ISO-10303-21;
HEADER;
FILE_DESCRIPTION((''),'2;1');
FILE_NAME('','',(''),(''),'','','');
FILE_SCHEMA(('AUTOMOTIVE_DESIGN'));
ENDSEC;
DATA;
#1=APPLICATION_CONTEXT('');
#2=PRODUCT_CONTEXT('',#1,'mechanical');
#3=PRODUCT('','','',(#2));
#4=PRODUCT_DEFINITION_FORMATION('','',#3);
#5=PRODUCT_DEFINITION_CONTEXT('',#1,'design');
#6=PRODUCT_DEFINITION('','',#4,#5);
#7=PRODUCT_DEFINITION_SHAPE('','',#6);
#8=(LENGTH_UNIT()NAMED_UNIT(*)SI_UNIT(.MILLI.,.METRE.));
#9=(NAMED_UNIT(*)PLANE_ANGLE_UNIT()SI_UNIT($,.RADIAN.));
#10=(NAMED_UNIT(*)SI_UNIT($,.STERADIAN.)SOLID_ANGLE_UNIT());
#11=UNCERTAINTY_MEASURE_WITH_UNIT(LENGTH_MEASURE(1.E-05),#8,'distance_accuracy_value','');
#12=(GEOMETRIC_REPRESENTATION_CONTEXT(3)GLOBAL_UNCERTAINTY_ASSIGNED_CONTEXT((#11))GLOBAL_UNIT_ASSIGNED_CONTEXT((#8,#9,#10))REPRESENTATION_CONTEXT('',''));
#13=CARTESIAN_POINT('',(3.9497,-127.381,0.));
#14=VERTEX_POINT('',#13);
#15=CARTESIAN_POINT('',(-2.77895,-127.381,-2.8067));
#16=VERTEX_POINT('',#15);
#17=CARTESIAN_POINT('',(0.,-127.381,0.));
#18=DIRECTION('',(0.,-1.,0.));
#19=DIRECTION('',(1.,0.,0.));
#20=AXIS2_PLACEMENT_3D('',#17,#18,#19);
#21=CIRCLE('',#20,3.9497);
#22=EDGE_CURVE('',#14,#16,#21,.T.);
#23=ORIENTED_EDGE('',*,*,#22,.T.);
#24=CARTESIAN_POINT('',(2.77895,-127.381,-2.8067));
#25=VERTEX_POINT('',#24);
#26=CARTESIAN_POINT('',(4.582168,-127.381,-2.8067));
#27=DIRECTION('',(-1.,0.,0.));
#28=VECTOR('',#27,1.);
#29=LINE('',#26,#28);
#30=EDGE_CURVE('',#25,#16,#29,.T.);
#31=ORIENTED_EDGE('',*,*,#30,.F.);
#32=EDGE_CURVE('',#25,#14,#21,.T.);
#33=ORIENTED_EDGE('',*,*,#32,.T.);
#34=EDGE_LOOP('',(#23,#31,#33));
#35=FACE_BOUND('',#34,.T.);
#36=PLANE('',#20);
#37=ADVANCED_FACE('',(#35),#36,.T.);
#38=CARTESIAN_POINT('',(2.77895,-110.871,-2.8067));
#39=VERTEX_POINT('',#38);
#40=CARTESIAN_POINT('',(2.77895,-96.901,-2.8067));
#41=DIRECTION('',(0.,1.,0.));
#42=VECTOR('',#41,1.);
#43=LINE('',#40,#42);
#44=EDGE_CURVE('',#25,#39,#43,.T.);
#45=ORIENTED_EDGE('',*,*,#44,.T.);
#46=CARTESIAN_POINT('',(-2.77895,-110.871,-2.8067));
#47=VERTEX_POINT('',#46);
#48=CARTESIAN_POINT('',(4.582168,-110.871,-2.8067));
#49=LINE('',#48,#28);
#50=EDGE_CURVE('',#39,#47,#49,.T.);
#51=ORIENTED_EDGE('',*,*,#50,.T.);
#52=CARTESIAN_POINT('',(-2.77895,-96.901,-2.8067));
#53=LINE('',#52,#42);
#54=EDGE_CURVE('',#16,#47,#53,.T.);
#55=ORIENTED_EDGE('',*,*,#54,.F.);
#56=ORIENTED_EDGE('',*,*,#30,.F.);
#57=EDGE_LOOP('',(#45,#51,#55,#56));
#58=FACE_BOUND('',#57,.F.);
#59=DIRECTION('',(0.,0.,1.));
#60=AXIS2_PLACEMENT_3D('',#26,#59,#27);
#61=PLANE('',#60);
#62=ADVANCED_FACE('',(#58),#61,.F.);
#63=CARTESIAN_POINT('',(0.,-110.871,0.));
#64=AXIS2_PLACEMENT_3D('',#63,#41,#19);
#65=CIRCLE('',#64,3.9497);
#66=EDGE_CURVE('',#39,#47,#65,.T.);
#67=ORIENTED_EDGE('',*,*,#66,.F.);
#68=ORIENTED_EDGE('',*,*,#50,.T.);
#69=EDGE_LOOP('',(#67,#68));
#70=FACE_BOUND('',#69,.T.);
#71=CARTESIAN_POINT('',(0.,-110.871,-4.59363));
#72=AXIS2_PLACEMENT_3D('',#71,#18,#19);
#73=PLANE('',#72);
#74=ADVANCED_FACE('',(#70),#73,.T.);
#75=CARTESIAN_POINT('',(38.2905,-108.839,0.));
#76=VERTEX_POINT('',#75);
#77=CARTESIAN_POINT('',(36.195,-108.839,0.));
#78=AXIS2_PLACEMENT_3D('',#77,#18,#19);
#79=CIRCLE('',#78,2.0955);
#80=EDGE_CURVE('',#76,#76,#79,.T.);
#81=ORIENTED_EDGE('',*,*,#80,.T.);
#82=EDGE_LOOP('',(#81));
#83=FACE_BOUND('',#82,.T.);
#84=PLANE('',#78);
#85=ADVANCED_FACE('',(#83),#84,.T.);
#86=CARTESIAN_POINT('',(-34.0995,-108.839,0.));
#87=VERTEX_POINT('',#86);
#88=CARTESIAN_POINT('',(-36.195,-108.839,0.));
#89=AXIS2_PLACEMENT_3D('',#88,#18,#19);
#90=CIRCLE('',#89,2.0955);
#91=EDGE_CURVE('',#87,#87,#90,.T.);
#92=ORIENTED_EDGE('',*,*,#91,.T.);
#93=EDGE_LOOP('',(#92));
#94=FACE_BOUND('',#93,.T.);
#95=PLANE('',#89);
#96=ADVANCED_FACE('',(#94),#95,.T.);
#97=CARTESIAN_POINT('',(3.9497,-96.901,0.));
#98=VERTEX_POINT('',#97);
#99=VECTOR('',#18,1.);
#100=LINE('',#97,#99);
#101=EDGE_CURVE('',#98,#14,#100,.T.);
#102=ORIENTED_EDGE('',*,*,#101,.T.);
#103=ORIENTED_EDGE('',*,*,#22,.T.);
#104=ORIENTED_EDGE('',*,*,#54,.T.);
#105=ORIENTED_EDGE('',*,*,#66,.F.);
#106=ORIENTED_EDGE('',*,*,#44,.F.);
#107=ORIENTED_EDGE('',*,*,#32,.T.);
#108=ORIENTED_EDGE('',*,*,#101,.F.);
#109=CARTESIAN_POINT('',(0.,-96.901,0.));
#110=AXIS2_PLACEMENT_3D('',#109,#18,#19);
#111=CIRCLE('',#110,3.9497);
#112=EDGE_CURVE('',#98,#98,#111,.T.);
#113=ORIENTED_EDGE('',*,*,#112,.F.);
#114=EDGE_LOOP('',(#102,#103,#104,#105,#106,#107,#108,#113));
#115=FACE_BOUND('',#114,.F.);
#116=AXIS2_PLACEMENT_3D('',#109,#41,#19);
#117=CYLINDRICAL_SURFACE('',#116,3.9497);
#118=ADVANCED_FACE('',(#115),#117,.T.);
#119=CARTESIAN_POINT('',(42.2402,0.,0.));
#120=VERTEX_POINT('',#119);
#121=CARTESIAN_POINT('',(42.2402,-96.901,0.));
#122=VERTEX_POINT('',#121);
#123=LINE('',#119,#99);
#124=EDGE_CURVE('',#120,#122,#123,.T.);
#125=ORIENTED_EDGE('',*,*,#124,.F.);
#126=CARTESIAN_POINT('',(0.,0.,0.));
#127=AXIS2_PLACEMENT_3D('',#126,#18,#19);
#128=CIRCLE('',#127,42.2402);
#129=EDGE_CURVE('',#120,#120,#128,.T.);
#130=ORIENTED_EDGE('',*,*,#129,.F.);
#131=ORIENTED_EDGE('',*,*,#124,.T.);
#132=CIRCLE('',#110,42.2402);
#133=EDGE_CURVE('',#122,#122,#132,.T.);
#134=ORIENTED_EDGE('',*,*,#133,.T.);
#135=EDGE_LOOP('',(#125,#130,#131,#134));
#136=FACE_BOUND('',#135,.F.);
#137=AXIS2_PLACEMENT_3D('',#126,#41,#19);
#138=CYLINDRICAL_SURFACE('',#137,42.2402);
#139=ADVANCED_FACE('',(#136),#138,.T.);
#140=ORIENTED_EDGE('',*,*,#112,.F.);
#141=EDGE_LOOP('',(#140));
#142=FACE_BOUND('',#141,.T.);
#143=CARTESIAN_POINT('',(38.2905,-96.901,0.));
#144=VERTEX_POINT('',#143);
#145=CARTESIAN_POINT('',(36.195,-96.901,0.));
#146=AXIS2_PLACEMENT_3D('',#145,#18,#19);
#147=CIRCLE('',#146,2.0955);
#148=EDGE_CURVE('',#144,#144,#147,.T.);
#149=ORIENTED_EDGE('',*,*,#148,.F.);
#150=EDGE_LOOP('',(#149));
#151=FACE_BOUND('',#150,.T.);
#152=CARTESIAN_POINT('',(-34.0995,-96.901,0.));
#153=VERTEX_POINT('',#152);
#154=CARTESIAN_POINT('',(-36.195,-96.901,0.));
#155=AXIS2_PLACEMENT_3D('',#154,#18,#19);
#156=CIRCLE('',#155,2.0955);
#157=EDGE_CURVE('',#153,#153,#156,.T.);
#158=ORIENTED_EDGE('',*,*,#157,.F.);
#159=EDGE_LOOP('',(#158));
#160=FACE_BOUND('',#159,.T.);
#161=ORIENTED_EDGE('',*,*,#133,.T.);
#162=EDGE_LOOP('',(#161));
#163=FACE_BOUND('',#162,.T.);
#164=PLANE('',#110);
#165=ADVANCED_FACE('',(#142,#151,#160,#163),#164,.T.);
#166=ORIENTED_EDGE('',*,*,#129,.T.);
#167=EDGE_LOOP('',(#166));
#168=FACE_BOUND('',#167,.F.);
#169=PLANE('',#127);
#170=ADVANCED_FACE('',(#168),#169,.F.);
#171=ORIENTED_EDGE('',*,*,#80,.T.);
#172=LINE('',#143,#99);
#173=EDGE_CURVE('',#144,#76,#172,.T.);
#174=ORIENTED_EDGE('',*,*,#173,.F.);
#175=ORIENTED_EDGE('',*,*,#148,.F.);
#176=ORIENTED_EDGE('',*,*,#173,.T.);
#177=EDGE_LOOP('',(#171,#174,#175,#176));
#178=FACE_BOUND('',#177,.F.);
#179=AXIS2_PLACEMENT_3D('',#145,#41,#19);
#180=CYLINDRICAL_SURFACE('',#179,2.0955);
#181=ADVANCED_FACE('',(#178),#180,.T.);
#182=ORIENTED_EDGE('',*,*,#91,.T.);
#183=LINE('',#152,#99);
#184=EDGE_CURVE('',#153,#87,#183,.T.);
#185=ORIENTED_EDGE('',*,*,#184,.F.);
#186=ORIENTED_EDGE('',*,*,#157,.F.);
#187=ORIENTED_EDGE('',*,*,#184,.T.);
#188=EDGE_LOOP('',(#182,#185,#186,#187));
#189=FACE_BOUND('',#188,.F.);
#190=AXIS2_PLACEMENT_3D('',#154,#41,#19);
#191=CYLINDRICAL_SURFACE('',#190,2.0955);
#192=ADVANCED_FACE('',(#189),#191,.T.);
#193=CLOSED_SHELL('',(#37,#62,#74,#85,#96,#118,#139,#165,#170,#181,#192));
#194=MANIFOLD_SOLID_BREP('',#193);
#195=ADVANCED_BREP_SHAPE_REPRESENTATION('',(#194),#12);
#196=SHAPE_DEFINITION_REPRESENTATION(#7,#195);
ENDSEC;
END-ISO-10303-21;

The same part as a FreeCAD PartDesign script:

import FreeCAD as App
import Part
import Sketcher

V = App.Vector
Q = App.Units.Quantity

doc = App.newDocument("Part")
body = doc.addObject("PartDesign::Body", "Body")

# Sketch on XZ plane
sketch1 = doc.addObject("Sketcher::SketchObject", "Sketch")
body.addObject(sketch1)
sketch1.AttachmentSupport = (doc.XZ_Plane, [""])
sketch1.MapMode = "FlatFace"
sketch1.addGeometry(Part.Circle(V(0, 0, 0), V(0, 0, 1), 42), False)
sketch1.addConstraint([
    Sketcher.Constraint("Coincident", 0, 3, -1, 1),
    Sketcher.Constraint("Diameter", 0, Q("3.326 in")),
])
pad1 = doc.addObject("PartDesign::Pad", "Pad")
body.addObject(pad1)
pad1.Profile = sketch1
pad1.Length = Q("3.815 in")

# Sketch on XZ plane
sketch2 = doc.addObject("Sketcher::SketchObject", "Sketch001")
body.addObject(sketch2)
sketch2.AttachmentSupport = (doc.XZ_Plane, [""])
sketch2.MapMode = "FlatFace"
sketch2.AttachmentOffset = App.Placement(V(0, 0, 3.815 * 25.4), App.Rotation())
sketch2.addGeometry(Part.Circle(V(0, 0, 0), V(0, 0, 1), 3.9), False)
sketch2.addConstraint([
    Sketcher.Constraint("Coincident", 0, 3, -1, 1),
    Sketcher.Constraint("Diameter", 0, Q("0.311 in")),
])
pad2 = doc.addObject("PartDesign::Pad", "Pad001")
body.addObject(pad2)
pad2.Profile = sketch2
pad2.Length = Q("1.2 in")

# Sketch on XZ plane
sketch3 = doc.addObject("Sketcher::SketchObject", "Sketch002")
body.addObject(sketch3)
sketch3.AttachmentSupport = (doc.XZ_Plane, [""])
sketch3.MapMode = "FlatFace"
sketch3.AttachmentOffset = App.Placement(V(0, 0, 3.815 * 25.4), App.Rotation())
sketch3.addGeometry([
    Part.Circle(V(-36.2, 0, 0), V(0, 0, 1), 2.1),
    Part.Circle(V(36.2, 0, 0), V(0, 0, 1), 2.1),
], False)
sketch3.addConstraint([
    Sketcher.Constraint("Equal", 0, 1),
    Sketcher.Constraint("Symmetric", 0, 3, 1, 3, -1, 1),
    Sketcher.Constraint("PointOnObject", 0, 3, -1),
    Sketcher.Constraint("Diameter", 0, Q("0.165 in")),
    Sketcher.Constraint("DistanceX", 0, 3, 1, 3, Q("2.85 in")),
])
pad3 = doc.addObject("PartDesign::Pad", "Pad002")
body.addObject(pad3)
pad3.Profile = sketch3
pad3.Length = Q("0.47 in")

# Sketch on XZ plane
sketch4 = doc.addObject("Sketcher::SketchObject", "Sketch003")
body.addObject(sketch4)
sketch4.AttachmentSupport = (doc.XZ_Plane, [""])
sketch4.MapMode = "FlatFace"
sketch4.AttachmentOffset = App.Placement(V(0, 0, 5.015 * 25.4), App.Rotation())
sketch4.addGeometry([
    Part.LineSegment(V(-4.6, -2.8, 0), V(-4.6, -6.1, 0)),
    Part.LineSegment(V(-4.6, -6.1, 0), V(4.6, -6.1, 0)),
    Part.LineSegment(V(4.6, -6.1, 0), V(4.6, -2.8, 0)),
    Part.LineSegment(V(4.6, -2.8, 0), V(-4.6, -2.8, 0)),
], False)
sketch4.addConstraint([
    Sketcher.Constraint("Coincident", 0, 2, 1, 1),
    Sketcher.Constraint("Coincident", 1, 2, 2, 1),
    Sketcher.Constraint("Coincident", 2, 2, 3, 1),
    Sketcher.Constraint("Coincident", 3, 2, 0, 1),
    Sketcher.Constraint("Vertical", 0),
    Sketcher.Constraint("Horizontal", 1),
    Sketcher.Constraint("Vertical", 2),
    Sketcher.Constraint("Horizontal", 3),
    Sketcher.Constraint("DistanceY", 2, 2, -1, 1, Q("0.1105 in")),
    Sketcher.Constraint("DistanceX", 1, 1, 1, 2, Q("9.164336 mm")),
    Sketcher.Constraint("DistanceY", 0, 2, 0, 1, Q("3.322072 mm")),
    Sketcher.Constraint("DistanceX", 0, 2, -1, 1, Q("4.582168 mm")),
])
pocket1 = doc.addObject("PartDesign::Pocket", "Pocket")
body.addObject(pocket1)
pocket1.Profile = sketch4
pocket1.Length = Q("0.65 in")

doc.recompute()
